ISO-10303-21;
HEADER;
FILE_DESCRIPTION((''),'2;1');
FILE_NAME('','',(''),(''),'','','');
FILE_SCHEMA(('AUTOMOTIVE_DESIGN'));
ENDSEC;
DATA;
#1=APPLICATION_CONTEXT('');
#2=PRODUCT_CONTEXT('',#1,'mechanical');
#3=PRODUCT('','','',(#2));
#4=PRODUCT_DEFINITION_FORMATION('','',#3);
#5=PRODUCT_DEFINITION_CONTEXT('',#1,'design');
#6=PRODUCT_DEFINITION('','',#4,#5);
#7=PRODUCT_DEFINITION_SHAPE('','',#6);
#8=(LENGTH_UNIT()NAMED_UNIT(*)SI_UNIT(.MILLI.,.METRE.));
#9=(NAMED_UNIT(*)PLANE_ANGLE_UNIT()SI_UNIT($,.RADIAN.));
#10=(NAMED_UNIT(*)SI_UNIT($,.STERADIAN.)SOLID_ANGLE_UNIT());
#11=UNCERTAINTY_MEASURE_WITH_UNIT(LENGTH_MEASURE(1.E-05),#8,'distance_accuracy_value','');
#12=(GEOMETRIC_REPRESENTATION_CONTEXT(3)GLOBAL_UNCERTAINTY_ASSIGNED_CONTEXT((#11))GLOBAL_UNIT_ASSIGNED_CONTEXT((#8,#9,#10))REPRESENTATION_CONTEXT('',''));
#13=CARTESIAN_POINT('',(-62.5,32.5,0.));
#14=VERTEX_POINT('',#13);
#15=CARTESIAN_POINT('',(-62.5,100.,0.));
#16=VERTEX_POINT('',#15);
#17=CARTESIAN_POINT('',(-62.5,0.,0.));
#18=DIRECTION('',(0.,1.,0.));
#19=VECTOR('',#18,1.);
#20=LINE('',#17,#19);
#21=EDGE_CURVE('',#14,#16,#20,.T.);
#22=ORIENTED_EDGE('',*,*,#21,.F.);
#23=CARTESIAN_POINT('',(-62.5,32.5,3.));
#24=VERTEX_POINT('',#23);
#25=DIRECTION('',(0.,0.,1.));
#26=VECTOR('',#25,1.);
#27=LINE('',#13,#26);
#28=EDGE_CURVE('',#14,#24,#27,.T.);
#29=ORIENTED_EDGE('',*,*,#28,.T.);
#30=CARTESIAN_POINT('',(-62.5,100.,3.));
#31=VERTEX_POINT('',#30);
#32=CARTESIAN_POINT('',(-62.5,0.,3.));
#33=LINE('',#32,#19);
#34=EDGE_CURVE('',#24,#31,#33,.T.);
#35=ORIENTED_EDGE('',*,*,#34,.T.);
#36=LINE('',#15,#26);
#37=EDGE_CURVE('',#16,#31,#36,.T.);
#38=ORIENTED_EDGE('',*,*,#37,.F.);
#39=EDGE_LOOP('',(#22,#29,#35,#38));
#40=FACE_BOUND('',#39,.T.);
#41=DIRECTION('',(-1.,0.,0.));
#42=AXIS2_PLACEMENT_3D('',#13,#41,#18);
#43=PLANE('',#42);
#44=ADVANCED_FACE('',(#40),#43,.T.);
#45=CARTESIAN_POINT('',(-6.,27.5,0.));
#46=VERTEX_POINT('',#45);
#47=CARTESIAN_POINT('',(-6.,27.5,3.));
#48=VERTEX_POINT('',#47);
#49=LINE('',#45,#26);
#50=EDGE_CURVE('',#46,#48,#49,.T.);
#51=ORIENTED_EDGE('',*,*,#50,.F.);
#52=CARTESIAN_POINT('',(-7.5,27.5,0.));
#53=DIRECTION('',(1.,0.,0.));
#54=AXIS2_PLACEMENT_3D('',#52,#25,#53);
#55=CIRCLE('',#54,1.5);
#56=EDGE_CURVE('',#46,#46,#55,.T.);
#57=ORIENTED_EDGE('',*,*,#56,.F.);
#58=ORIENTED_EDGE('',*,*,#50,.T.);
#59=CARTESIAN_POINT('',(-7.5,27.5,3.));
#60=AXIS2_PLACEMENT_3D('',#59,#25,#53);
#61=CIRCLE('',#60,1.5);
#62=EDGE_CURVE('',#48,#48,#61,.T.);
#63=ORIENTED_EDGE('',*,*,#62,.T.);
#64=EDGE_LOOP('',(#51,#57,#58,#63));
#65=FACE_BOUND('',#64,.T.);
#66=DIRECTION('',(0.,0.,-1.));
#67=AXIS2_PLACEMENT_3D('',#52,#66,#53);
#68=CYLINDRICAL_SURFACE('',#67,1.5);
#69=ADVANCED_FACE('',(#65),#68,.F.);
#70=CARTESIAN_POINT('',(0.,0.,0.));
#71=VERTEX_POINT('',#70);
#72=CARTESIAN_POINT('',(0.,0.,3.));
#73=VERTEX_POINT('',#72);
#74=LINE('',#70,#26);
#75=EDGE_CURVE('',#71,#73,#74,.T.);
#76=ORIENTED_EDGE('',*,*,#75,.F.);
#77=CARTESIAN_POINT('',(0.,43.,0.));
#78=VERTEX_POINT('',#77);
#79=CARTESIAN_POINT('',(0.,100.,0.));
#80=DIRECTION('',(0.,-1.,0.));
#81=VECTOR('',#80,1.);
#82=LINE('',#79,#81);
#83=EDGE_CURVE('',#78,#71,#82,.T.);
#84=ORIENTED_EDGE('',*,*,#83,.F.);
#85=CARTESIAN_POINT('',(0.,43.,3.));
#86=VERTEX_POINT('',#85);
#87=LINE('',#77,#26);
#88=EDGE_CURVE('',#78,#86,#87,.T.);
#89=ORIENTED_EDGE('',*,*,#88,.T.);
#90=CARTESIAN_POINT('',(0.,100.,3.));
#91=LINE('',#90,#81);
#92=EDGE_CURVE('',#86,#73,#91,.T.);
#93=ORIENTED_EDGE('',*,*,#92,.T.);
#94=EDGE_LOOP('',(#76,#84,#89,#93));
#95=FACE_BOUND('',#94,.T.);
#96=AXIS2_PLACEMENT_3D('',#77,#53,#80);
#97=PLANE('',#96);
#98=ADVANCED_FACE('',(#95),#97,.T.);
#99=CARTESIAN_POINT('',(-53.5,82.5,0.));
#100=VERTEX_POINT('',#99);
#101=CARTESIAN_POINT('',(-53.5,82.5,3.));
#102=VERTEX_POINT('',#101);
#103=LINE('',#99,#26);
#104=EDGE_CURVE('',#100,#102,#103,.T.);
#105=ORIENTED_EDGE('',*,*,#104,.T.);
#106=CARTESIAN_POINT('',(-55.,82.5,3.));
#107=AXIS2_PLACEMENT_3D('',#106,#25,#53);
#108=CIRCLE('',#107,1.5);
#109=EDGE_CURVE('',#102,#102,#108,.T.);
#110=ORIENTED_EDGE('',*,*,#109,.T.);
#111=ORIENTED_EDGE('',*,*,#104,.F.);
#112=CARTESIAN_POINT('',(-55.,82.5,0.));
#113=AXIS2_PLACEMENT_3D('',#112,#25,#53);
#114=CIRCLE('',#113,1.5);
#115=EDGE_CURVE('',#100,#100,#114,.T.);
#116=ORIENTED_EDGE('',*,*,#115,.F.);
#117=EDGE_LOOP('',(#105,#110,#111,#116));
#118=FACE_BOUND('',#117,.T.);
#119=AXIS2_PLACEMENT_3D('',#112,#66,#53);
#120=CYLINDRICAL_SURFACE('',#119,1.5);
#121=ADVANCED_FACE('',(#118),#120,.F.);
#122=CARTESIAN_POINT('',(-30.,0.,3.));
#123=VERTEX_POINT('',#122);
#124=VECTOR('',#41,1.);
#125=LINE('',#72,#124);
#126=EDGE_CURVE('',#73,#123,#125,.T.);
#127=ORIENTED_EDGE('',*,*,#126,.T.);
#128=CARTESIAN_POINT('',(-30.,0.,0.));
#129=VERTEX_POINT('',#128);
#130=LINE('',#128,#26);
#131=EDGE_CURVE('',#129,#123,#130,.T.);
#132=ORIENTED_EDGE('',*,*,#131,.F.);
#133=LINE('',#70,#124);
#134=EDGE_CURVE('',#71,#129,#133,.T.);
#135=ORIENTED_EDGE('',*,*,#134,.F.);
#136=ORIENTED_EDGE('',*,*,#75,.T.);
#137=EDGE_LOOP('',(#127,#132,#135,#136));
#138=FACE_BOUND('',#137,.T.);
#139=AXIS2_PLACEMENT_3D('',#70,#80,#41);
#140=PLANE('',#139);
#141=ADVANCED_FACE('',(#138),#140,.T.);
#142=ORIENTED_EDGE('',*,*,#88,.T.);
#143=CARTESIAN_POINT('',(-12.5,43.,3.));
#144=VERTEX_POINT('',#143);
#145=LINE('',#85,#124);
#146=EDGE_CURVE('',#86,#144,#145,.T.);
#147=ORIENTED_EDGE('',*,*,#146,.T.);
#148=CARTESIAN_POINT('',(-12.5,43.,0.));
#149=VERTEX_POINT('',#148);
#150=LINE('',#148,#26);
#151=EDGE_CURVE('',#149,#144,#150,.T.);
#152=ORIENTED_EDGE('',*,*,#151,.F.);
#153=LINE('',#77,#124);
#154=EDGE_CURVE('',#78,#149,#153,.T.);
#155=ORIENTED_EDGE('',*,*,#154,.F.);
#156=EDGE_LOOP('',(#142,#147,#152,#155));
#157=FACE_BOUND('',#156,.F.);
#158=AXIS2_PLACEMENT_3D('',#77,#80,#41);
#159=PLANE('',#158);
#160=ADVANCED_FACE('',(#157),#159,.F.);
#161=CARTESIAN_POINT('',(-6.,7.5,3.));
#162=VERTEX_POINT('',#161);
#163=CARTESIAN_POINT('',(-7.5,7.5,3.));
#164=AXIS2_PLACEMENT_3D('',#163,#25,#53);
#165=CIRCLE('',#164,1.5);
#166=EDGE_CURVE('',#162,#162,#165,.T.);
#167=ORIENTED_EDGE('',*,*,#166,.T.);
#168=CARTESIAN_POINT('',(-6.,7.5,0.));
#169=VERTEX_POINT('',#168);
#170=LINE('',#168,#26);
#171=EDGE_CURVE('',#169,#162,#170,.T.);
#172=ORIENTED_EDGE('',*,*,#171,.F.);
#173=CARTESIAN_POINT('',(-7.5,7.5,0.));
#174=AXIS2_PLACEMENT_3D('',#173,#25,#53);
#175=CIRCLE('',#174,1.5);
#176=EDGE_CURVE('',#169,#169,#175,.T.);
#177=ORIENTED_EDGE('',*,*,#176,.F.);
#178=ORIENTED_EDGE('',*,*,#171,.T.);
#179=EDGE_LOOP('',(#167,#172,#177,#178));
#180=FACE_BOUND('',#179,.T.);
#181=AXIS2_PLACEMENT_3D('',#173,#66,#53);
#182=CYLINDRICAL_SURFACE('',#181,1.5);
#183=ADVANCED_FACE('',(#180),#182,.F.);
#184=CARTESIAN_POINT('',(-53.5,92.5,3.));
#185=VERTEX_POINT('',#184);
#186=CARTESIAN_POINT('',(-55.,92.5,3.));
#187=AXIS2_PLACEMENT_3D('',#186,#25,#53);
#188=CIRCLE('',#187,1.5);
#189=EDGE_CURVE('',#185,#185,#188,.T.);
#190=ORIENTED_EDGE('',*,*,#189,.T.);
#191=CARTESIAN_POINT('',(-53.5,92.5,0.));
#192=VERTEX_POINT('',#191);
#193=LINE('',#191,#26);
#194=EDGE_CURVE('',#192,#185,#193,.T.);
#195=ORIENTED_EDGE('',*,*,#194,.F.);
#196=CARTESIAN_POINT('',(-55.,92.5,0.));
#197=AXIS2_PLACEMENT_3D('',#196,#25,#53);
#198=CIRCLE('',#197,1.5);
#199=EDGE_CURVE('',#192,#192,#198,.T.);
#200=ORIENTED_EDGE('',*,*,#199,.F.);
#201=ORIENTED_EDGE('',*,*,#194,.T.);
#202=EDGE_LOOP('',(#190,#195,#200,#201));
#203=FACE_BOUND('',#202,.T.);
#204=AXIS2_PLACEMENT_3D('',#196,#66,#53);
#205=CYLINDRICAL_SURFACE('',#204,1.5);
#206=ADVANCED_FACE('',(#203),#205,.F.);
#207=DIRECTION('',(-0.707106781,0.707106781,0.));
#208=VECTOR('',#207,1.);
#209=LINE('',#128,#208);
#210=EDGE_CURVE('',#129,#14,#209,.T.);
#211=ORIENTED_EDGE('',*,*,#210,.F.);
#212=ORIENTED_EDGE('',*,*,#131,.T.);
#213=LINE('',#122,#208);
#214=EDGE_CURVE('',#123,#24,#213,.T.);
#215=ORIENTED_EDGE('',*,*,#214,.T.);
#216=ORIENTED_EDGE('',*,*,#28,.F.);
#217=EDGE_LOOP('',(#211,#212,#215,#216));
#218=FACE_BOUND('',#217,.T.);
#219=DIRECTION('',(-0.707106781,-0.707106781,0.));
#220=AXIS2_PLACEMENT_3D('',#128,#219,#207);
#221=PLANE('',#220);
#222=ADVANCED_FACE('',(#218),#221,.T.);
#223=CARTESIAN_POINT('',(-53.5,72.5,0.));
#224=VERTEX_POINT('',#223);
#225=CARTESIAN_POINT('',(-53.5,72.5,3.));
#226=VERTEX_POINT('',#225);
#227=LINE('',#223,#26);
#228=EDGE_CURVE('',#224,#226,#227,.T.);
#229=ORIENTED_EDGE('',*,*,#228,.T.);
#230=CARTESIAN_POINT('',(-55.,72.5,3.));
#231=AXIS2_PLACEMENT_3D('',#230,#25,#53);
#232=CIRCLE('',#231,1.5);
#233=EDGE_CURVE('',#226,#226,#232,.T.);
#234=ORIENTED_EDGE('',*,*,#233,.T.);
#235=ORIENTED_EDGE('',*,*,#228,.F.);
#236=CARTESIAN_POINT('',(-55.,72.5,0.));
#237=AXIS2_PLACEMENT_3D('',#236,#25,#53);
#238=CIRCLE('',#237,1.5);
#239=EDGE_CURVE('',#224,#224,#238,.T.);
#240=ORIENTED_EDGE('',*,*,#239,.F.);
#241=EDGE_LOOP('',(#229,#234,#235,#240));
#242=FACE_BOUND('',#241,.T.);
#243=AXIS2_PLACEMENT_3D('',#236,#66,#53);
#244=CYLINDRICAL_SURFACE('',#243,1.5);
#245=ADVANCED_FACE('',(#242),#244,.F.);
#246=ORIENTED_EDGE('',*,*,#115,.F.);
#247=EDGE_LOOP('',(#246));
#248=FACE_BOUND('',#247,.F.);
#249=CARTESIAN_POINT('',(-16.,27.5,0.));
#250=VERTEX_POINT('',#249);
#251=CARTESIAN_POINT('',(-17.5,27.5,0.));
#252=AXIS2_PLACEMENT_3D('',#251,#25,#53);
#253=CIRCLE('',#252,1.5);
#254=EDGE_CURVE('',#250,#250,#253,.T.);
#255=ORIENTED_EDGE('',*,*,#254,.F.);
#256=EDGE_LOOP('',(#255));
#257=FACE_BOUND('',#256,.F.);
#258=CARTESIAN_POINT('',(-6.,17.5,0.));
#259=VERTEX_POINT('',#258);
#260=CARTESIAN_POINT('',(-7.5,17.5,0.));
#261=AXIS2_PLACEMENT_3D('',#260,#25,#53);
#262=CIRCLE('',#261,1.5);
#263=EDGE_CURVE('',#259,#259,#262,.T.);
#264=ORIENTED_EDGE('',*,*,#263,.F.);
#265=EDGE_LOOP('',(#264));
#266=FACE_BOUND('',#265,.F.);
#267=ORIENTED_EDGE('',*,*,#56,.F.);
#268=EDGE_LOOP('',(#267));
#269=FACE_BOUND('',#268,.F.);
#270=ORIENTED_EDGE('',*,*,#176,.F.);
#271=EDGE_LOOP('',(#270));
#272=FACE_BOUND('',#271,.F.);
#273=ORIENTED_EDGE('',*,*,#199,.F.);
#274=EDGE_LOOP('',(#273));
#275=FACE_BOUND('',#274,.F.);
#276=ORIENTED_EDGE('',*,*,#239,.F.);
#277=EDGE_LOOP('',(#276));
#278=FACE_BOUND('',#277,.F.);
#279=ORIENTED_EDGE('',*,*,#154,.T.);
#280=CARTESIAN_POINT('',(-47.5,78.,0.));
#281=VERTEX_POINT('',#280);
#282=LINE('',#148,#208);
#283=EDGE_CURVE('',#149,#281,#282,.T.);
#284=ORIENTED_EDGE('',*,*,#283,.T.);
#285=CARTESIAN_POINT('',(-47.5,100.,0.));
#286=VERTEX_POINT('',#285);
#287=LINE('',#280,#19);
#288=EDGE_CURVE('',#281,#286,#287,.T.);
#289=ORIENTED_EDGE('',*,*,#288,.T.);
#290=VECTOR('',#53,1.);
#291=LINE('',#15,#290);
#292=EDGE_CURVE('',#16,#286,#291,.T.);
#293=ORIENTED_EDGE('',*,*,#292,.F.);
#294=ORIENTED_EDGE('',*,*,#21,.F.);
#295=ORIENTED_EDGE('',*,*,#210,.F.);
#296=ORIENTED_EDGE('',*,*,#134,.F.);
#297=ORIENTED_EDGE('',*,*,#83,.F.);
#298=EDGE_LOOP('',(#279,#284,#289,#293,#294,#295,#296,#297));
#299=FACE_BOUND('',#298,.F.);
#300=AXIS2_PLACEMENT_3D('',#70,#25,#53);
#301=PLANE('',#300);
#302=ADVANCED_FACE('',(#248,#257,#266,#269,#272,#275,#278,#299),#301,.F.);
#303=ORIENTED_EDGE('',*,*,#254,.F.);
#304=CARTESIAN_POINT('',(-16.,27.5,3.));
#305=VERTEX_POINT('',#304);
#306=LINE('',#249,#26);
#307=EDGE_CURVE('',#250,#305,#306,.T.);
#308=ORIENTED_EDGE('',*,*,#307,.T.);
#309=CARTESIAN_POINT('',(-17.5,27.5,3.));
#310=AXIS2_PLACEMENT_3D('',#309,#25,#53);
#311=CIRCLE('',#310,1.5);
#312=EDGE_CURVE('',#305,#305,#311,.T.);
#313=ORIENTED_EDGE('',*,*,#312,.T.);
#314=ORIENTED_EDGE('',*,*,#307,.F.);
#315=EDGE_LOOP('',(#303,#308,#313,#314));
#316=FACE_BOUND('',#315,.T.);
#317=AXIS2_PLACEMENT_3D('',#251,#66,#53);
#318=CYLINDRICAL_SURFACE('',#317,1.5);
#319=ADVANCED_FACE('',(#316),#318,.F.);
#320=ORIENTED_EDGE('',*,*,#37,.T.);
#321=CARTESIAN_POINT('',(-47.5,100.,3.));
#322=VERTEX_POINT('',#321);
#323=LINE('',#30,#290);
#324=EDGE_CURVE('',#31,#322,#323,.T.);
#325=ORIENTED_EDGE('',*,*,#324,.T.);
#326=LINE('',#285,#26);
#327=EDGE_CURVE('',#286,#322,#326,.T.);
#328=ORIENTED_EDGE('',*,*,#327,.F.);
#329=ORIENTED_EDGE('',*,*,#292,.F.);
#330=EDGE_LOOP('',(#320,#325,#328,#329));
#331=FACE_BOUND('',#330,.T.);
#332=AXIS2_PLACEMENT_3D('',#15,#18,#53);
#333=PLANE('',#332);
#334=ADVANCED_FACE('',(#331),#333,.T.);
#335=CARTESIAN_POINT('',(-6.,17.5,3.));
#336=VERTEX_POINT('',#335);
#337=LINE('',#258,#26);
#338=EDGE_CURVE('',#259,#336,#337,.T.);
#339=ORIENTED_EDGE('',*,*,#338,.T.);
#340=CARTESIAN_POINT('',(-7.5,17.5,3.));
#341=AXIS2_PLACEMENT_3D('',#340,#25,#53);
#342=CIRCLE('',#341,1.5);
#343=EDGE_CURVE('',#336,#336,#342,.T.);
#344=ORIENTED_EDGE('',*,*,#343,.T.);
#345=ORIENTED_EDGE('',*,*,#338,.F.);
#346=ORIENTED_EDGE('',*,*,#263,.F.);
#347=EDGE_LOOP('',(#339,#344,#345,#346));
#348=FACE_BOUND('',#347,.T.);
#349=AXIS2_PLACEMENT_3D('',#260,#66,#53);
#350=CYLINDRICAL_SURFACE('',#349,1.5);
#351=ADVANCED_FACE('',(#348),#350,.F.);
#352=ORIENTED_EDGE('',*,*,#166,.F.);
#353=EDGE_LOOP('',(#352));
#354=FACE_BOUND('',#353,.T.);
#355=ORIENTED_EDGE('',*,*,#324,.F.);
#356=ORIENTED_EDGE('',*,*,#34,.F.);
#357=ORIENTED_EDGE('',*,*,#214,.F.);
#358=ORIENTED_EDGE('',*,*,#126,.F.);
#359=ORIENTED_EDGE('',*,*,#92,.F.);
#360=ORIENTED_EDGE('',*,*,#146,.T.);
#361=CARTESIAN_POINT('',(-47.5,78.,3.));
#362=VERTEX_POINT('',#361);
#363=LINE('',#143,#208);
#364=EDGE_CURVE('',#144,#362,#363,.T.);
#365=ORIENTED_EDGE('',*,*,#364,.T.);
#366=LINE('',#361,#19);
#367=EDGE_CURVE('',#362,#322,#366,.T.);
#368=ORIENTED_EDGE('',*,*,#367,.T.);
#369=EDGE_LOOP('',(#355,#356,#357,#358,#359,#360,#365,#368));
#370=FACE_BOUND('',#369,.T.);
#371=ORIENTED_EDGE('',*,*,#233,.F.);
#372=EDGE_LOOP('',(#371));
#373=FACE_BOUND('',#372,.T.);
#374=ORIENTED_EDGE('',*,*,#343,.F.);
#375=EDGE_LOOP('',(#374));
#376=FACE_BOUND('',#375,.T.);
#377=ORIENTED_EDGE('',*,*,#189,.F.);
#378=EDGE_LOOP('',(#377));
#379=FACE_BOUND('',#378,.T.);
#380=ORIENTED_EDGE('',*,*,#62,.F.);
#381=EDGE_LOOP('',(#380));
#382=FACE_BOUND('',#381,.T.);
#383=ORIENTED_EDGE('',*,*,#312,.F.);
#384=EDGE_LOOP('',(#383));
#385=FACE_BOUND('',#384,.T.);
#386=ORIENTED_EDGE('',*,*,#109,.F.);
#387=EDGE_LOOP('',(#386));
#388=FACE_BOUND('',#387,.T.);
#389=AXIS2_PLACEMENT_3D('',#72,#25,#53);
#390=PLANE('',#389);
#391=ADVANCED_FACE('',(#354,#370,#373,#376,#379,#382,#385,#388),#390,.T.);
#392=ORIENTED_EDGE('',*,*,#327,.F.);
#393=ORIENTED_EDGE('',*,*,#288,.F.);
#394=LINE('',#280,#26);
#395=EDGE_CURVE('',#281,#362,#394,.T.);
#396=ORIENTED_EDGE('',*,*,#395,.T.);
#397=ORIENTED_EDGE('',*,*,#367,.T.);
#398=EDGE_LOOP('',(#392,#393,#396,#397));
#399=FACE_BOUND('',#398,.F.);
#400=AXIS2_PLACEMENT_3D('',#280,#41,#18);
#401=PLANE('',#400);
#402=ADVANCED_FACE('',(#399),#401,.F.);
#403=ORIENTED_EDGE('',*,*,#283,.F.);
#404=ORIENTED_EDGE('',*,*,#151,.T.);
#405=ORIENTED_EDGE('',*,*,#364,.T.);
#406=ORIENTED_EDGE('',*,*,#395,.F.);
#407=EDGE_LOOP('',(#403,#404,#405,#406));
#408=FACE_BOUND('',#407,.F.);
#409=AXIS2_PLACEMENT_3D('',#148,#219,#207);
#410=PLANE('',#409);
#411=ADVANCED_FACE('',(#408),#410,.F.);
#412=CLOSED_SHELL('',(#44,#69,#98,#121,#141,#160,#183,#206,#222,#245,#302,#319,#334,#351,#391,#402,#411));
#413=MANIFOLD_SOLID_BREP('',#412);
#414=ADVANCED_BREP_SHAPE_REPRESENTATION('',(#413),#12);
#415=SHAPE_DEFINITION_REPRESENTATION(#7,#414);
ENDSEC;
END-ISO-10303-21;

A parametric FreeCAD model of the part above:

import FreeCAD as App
import Part
import Sketcher
Q = App.Units.Quantity


def add_polygon(sketch, points):
    """Adds a closed chain of lines whose ends are joined by coincident constraints."""
    first, n = sketch.GeometryCount, len(points)
    for a, b in zip(points, points[1:] + points[:1]):
        sketch.addGeometry(Part.LineSegment(App.Vector(*a, 0), App.Vector(*b, 0)), False)
    for i in range(n):
        sketch.addConstraint(Sketcher.Constraint("Coincident", first + i, 2, first + (i + 1) % n, 1))

doc = App.newDocument("Part")
body = doc.addObject("PartDesign::Body", "Body")

sketch1 = body.newObject("Sketcher::SketchObject", "Sketch")
sketch1.AttachmentSupport = (doc.getObject("XY_Plane"), [""])
sketch1.MapMode = "FlatFace"
add_polygon(sketch1, [(-30, 0), (0, 0), (0, 43), (-12.5, 43), (-47.5, 78), (-47.5, 100), (-62.5, 100), (-62.5, 32.5)])
sketch1.addGeometry(Part.Circle(App.Vector(-7.5, 7.5, 0), App.Vector(0, 0, 1), 1.5), False)
sketch1.addGeometry(Part.Circle(App.Vector(-7.5, 17.5, 0), App.Vector(0, 0, 1), 1.5), False)
sketch1.addGeometry(Part.Circle(App.Vector(-17.5, 27.5, 0), App.Vector(0, 0, 1), 1.5), False)
sketch1.addGeometry(Part.Circle(App.Vector(-7.5, 27.5, 0), App.Vector(0, 0, 1), 1.5), False)
sketch1.addGeometry(Part.Circle(App.Vector(-55, 72.5, 0), App.Vector(0, 0, 1), 1.5), False)
sketch1.addGeometry(Part.Circle(App.Vector(-55, 82.5, 0), App.Vector(0, 0, 1), 1.5), False)
sketch1.addGeometry(Part.Circle(App.Vector(-55, 92.5, 0), App.Vector(0, 0, 1), 1.5), False)
sketch1.addConstraint(Sketcher.Constraint("Horizontal", 0))
sketch1.addConstraint(Sketcher.Constraint("Vertical", 1))
sketch1.addConstraint(Sketcher.Constraint("Horizontal", 2))
sketch1.addConstraint(Sketcher.Constraint("Vertical", 4))
sketch1.addConstraint(Sketcher.Constraint("Horizontal", 5))
sketch1.addConstraint(Sketcher.Constraint("Vertical", 6))
sketch1.addConstraint(Sketcher.Constraint("Coincident", 0, 2, -1, 1))
sketch1.addConstraint(Sketcher.Constraint("Equal", 8, 9))
sketch1.addConstraint(Sketcher.Constraint("Equal", 9, 10))
sketch1.addConstraint(Sketcher.Constraint("Equal", 10, 11))
sketch1.addConstraint(Sketcher.Constraint("Equal", 11, 12))
sketch1.addConstraint(Sketcher.Constraint("Equal", 12, 13))
sketch1.addConstraint(Sketcher.Constraint("Equal", 13, 14))
sketch1.addConstraint(Sketcher.Constraint("Parallel", 3, 7))
sketch1.addConstraint(Sketcher.Constraint("Horizontal", 10, 3, 11, 3))
sketch1.addConstraint(Sketcher.Constraint("Vertical", 8, 3, 9, 3))
sketch1.addConstraint(Sketcher.Constraint("Vertical", 9, 3, 11, 3))
sketch1.addConstraint(Sketcher.Constraint("Vertical", 12, 3, 13, 3))
sketch1.addConstraint(Sketcher.Constraint("Vertical", 13, 3, 14, 3))
sketch1.addConstraint(Sketcher.Constraint("Diameter", 8, Q("3 mm")))
sketch1.addConstraint(Sketcher.Constraint("DistanceX", 5, 2, 5, 1, Q("15 mm")))
sketch1.addConstraint(Sketcher.Constraint("DistanceY", 1, 1, 1, 2, Q("43 mm")))
sketch1.addConstraint(Sketcher.Constraint("Angle", 3, Q("135 deg")))
sketch1.addConstraint(Sketcher.Constraint("DistanceX", 2, 2, 2, 1, Q("12.5 mm")))
sketch1.addConstraint(Sketcher.Constraint("DistanceY", -1, 1, 4, 2, Q("100 mm")))
sketch1.addConstraint(Sketcher.Constraint("DistanceY", 8, 3, 9, 3, Q("10 mm")))
sketch1.addConstraint(Sketcher.Constraint("DistanceX", 10, 3, 9, 3, Q("10 mm")))
sketch1.addConstraint(Sketcher.Constraint("DistanceY", 9, 3, 10, 3, Q("10 mm")))
sketch1.addConstraint(Sketcher.Constraint("DistanceY", 12, 3, 13, 3, Q("10 mm")))
sketch1.addConstraint(Sketcher.Constraint("DistanceY", 13, 3, 14, 3, Q("10 mm")))
sketch1.addConstraint(Sketcher.Constraint("DistanceX", 8, 3, -1, 1, Q("7.5 mm")))
sketch1.addConstraint(Sketcher.Constraint("DistanceY", -1, 1, 8, 3, Q("7.5 mm")))
sketch1.addConstraint(Sketcher.Constraint("DistanceX", 5, 2, -1, 1, Q("62.5 mm")))
sketch1.addConstraint(Sketcher.Constraint("DistanceY", -1, 1, 6, 2, Q("32.5 mm")))
sketch1.addConstraint(Sketcher.Constraint("DistanceX", 13, 3, 3, 2, Q("7.5 mm")))
sketch1.addConstraint(Sketcher.Constraint("DistanceY", 14, 3, 4, 2, Q("7.5 mm")))
pad1 = body.newObject("PartDesign::Pad", "Pad")
pad1.Profile = sketch1
pad1.Length = 3

doc.recompute()
